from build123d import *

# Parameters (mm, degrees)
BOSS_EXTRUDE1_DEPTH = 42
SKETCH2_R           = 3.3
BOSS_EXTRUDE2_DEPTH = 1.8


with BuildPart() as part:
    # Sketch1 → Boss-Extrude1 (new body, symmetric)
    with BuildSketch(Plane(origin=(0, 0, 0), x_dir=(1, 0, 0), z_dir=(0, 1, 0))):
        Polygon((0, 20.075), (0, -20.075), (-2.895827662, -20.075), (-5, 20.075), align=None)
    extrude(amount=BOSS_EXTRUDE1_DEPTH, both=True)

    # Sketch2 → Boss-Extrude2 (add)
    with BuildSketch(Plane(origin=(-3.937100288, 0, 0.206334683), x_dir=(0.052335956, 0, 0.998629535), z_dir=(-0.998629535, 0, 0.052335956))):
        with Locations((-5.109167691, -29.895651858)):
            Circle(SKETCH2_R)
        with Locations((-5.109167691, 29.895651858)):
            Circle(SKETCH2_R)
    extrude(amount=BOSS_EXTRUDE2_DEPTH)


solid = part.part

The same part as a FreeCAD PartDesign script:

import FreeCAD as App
import Part
import Sketcher

V = App.Vector
Q = App.Units.Quantity


def add_polygon(sketch, points):
    """Adds a closed chain of lines whose ends are joined by coincident constraints."""
    first, n = sketch.GeometryCount, len(points)
    for a, b in zip(points, points[1:] + points[:1]):
        sketch.addGeometry(Part.LineSegment(App.Vector(*a, 0), App.Vector(*b, 0)), False)
    for i in range(n):
        sketch.addConstraint(Sketcher.Constraint("Coincident", first + i, 2, first + (i + 1) % n, 1))

doc = App.newDocument("Part")
body = doc.addObject("PartDesign::Body", "Body")

# Sketch on XZ plane
sketch1 = doc.addObject("Sketcher::SketchObject", "Sketch")
body.addObject(sketch1)
sketch1.AttachmentSupport = (doc.XZ_Plane, [""])
sketch1.MapMode = "FlatFace"
add_polygon(sketch1, [(0, 20.075), (0, -20.075), (-5, -20.075), (-2.895828, 20.075)])  # lines 0-3
sketch1.addConstraint([
    Sketcher.Constraint("Vertical", 0),
    Sketcher.Constraint("Horizontal", 1),
    Sketcher.Constraint("Horizontal", 3),
    Sketcher.Constraint("Symmetric", 0, 2, 3, 2, -1, 1),
    Sketcher.Constraint("DistanceX", 1, 2, 1, 1, Q("5 mm")),
    Sketcher.Constraint("Angle", 2, Q("87 deg")),
    Sketcher.Constraint("DistanceY", 0, 2, 0, 1, Q("40.15 mm")),
])
pad1 = doc.addObject("PartDesign::Pad", "Pad")
body.addObject(pad1)
pad1.Profile = sketch1
pad1.Length = 84
pad1.Midplane = True

# Sketch on an angled plane
sketch2 = doc.addObject("Sketcher::SketchObject", "Sketch001")
body.addObject(sketch2)
sketch2.Placement = App.Placement(V(-3.9371, 0, 0.206335), App.Rotation(V(0.052335956, 0, 0.998629535), V(0, 1, 0), V(-0.998629535, 0, 0.052335956), "ZXY"))
sketch2.addGeometry([
    Part.Circle(V(-5.109168, -29.895652, 0), V(0, 0, 1), 3.3),
    Part.Circle(V(-5.109168, 29.895652, 0), V(0, 0, 1), 3.3),
], False)
sketch2.addConstraint([
    Sketcher.Constraint("Equal", 0, 1),
    Sketcher.Constraint("Symmetric", 0, 3, 1, 3, -1),
    Sketcher.Constraint("Diameter", 0, Q("6.6 mm")),
    Sketcher.Constraint("DistanceY", 0, 3, -1, 1, Q("29.895652 mm")),
    Sketcher.Constraint("DistanceX", 0, 3, -1, 1, Q("5.109168 mm")),
])
pad2 = doc.addObject("PartDesign::Pad", "Pad001")
body.addObject(pad2)
pad2.Profile = sketch2
pad2.Length = 1.8

doc.recompute()
